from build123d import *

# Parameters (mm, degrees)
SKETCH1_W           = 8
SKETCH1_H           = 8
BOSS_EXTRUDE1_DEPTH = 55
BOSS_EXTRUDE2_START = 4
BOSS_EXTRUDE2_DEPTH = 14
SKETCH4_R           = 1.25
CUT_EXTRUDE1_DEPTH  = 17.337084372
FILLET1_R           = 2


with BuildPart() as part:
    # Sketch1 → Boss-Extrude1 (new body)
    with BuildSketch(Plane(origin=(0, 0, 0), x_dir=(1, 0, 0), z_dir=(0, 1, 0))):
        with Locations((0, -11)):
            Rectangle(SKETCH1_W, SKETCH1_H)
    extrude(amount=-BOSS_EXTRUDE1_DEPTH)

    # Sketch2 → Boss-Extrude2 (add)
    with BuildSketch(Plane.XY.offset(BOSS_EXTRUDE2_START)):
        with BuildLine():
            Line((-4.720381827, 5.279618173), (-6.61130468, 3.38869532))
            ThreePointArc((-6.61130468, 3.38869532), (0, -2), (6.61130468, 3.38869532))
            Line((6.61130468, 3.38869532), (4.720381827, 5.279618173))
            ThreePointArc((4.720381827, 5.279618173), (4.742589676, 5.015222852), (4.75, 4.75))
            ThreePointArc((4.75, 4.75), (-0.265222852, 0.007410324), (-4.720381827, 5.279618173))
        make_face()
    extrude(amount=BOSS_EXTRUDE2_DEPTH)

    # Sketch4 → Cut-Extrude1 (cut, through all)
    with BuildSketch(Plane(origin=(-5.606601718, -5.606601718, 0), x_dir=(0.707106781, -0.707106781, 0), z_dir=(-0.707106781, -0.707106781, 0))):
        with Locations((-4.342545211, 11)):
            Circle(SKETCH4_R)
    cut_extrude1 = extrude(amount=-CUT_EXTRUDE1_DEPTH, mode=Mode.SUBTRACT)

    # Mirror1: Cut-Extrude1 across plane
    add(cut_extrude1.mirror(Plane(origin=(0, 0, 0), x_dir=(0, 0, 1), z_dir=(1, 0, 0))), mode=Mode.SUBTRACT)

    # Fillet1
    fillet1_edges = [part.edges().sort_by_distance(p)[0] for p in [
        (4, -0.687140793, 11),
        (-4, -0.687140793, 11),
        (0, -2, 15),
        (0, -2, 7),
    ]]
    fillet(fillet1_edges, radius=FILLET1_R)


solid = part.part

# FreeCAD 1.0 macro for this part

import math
import FreeCAD as App
import Part
import Sketcher

V = App.Vector


def edges_at(feature, points):
    """Names of the edges that pass closest to the given points."""
    edges = feature.Shape.Edges
    near = lambda p: min(range(len(edges)), key=lambda i: edges[i].distToShape(Part.Vertex(*p))[0])
    return sorted({f"Edge{near(p) + 1}" for p in points})

doc = App.newDocument("Part")
body = doc.addObject("PartDesign::Body", "Body")

# Sketch on XZ plane
sketch1 = doc.addObject("Sketcher::SketchObject", "Sketch")
body.addObject(sketch1)
sketch1.AttachmentSupport = (doc.XZ_Plane, [""])
sketch1.MapMode = "FlatFace"
sketch1.addGeometry([
    Part.LineSegment(V(-4, 7, 0), V(-4, 15, 0)),
    Part.LineSegment(V(-4, 15, 0), V(4, 15, 0)),
    Part.LineSegment(V(4, 15, 0), V(4, 7, 0)),
    Part.LineSegment(V(4, 7, 0), V(-4, 7, 0)),
], False)
sketch1.addConstraint([
    Sketcher.Constraint("Coincident", 0, 2, 1, 1),
    Sketcher.Constraint("Coincident", 1, 2, 2, 1),
    Sketcher.Constraint("Coincident", 2, 2, 3, 1),
    Sketcher.Constraint("Coincident", 3, 2, 0, 1),
    Sketcher.Constraint("Vertical", 0),
    Sketcher.Constraint("Horizontal", 1),
    Sketcher.Constraint("Vertical", 2),
    Sketcher.Constraint("Horizontal", 3),
    Sketcher.Constraint("Equal", 3, 0),
    Sketcher.Constraint("DistanceX", 1, 1, 1, 2, 8.0),
    Sketcher.Constraint("DistanceX", 0, 2, -1, 1, 4.0),
    Sketcher.Constraint("DistanceY", -1, 1, 0, 2, 15.0),
])
pad1 = doc.addObject("PartDesign::Pad", "Pad")
body.addObject(pad1)
pad1.Profile = sketch1
pad1.Length = 55

# Sketch on XY plane
sketch2 = doc.addObject("Sketcher::SketchObject", "Sketch001")
body.addObject(sketch2)
sketch2.AttachmentSupport = (doc.XY_Plane, [""])
sketch2.MapMode = "FlatFace"
sketch2.AttachmentOffset = App.Placement(V(0, 0, 4), App.Rotation())
sketch2.addGeometry([
    Part.LineSegment(V(-4.720382, 5.279618, 0), V(-6.611305, 3.388695, 0)),  # 0
    Part.ArcOfCircle(Part.Circle(V(0, 4.75, 0), V(0, 0, 1), 6.75), math.radians(-168.365088), math.radians(-11.634912)),  # 1
    Part.LineSegment(V(6.611305, 3.388695, 0), V(4.720382, 5.279618, 0)),  # 2
    Part.ArcOfCircle(Part.Circle(V(0, 4.75, 0), V(0, 0, 1), 4.75), math.radians(0), math.radians(6.401708)),  # 3
    Part.ArcOfCircle(Part.Circle(V(0, 4.75, 0), V(0, 0, 1), 4.75), math.radians(173.598292), math.radians(360)),  # 4
], False)
sketch2.addConstraint([
    Sketcher.Constraint("Coincident", 0, 2, 1, 1),
    Sketcher.Constraint("Coincident", 1, 2, 2, 1),
    Sketcher.Constraint("Coincident", 2, 2, 3, 2),
    Sketcher.Constraint("Tangent", 3, 1, 4, 2),
    Sketcher.Constraint("Coincident", 4, 1, 0, 1),
    Sketcher.Constraint("Coincident", 3, 3, 1, 3),
    Sketcher.Constraint("Equal", 3, 4),
    Sketcher.Constraint("Symmetric", 0, 2, 1, 2, -2),
    Sketcher.Constraint("Perpendicular", 0, 2),
    Sketcher.Constraint("Horizontal", 4, 3, 3, 1),
    Sketcher.Constraint("Horizontal", 2, 2, 4, 1),
    Sketcher.Constraint("Radius", 1, 6.75),
    Sketcher.Constraint("Radius", 3, 4.75),
    Sketcher.Constraint("DistanceY", -1, 1, 1, 3, 4.75),
    Sketcher.Constraint("Distance", 0, 2.674169),
])
pad2 = doc.addObject("PartDesign::Pad", "Pad001")
body.addObject(pad2)
pad2.Profile = sketch2
pad2.Length = 14

# Sketch on an angled plane
sketch3 = doc.addObject("Sketcher::SketchObject", "Sketch002")
body.addObject(sketch3)
sketch3.Placement = App.Placement(V(-5.606602, -5.606602, 0), App.Rotation(V(0.707106781, -0.707106781, 0), V(0, 0, 0.999999999), V(-0.707106781, -0.707106781, 0), "ZXY"))
sketch3.addGeometry(Part.Circle(V(-4.342545, 11, 0), V(0, 0, 1), 1.25), False)
sketch3.addConstraint([
    Sketcher.Constraint("Diameter", 0, 2.5),
    Sketcher.Constraint("DistanceY", -1, 1, 0, 3, 11.0),
    Sketcher.Constraint("DistanceX", 0, 3, -1, 1, 4.342545),
])
pocket1 = doc.addObject("PartDesign::Pocket", "Pocket")
body.addObject(pocket1)
pocket1.Profile = sketch3
pocket1.Type = "ThroughAll"
doc.recompute()

mirrored = doc.addObject("PartDesign::Mirrored", "Mirrored")
body.addObject(mirrored)
mirrored.Originals = [pocket1]
mirrored.MirrorPlane = (doc.YZ_Plane, [""])
body.Tip = mirrored
doc.recompute()

fillet = doc.addObject("PartDesign::Fillet", "Fillet")
body.addObject(fillet)
fillet.Base = (mirrored, edges_at(mirrored, [
    (4, -0.687, 11),
    (-4, -0.687, 11),
    (0, -2, 15),
    (0, -2, 7),
]))
fillet.Radius = 2

doc.recompute()
